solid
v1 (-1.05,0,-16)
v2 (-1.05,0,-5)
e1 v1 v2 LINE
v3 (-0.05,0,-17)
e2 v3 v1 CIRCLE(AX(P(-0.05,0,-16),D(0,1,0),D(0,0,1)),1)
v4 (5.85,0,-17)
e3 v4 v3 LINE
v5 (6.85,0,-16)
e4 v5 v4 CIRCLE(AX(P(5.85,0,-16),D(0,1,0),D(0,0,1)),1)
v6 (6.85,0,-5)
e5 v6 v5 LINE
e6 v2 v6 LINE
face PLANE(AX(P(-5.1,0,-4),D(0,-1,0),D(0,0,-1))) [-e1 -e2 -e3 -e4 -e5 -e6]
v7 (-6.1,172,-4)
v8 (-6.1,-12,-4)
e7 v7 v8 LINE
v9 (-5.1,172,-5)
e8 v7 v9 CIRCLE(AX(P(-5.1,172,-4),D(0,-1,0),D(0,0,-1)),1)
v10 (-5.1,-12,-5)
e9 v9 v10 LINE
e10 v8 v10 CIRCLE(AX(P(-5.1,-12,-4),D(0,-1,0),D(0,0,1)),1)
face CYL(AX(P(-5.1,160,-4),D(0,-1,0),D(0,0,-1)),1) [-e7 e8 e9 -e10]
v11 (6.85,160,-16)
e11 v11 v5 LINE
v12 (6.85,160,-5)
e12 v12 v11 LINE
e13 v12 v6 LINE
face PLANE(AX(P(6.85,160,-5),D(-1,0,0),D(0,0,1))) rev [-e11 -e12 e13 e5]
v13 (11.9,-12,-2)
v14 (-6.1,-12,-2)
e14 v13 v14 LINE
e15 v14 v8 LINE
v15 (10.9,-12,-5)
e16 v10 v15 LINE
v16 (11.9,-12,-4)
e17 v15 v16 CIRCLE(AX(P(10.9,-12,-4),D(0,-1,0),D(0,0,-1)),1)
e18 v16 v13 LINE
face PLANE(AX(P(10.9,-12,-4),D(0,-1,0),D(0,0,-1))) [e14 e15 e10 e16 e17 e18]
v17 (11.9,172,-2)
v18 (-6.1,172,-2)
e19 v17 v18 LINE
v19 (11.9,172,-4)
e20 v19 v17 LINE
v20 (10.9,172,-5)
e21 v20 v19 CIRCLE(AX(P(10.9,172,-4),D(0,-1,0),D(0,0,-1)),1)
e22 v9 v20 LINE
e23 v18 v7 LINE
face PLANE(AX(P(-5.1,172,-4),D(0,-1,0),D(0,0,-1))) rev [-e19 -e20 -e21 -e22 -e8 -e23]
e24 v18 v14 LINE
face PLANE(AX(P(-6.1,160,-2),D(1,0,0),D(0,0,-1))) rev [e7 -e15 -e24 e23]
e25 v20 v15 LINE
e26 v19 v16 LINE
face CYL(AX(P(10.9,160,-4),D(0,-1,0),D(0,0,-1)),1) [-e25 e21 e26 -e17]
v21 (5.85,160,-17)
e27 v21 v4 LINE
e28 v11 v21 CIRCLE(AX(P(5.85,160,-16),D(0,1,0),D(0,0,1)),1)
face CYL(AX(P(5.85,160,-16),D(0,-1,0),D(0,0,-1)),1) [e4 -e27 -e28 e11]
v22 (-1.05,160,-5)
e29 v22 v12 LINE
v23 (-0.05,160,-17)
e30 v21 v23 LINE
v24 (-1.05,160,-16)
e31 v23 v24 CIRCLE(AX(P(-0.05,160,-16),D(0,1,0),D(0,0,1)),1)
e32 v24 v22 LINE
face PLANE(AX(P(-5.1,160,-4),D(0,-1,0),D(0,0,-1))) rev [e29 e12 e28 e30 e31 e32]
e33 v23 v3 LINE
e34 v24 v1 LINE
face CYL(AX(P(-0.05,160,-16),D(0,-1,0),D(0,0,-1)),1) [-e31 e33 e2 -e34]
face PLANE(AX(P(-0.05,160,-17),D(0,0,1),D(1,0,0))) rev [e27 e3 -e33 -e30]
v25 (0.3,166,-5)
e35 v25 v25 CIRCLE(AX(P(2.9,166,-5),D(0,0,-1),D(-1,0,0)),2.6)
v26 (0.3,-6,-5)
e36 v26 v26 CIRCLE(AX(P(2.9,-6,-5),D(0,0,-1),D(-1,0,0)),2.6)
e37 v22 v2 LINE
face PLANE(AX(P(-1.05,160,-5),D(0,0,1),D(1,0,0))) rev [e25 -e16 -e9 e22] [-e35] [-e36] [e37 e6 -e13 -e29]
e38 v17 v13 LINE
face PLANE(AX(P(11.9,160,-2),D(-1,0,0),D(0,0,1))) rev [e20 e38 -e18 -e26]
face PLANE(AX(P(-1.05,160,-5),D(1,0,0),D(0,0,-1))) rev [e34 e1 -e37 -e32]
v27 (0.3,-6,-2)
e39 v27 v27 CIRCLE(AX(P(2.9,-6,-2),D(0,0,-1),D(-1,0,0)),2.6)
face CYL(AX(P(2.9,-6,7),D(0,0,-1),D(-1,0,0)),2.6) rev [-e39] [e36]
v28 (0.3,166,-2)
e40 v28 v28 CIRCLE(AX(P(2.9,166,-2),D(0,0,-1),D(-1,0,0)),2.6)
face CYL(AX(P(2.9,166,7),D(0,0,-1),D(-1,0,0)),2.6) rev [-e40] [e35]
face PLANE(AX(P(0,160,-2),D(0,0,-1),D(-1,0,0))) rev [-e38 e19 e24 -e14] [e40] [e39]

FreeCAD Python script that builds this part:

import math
import FreeCAD as App
import Part
import Sketcher

doc = App.newDocument("Part")
body = doc.addObject("PartDesign::Body", "Body")

# Sketch on XZ plane
sketch1 = body.newObject("Sketcher::SketchObject", "Sketch")
sketch1.AttachmentSupport = (doc.getObject("XZ_Plane"), [""])
sketch1.MapMode = "FlatFace"
sketch1.addGeometry([
    Part.LineSegment(App.Vector(-6.1, -4, 0), App.Vector(-6.1, -2, 0)),  # 0
    Part.LineSegment(App.Vector(-6.1, -2, 0), App.Vector(11.9, -2, 0)),  # 1
    Part.LineSegment(App.Vector(11.9, -2, 0), App.Vector(11.9, -4, 0)),  # 2
    Part.ArcOfCircle(Part.Circle(App.Vector(10.9, -4, 0), App.Vector(0, 0, 1), 1), math.radians(-90), math.radians(0)),  # 3
    Part.LineSegment(App.Vector(10.9, -5, 0), App.Vector(6.8, -5, 0)),  # 4
    Part.LineSegment(App.Vector(6.8, -5, 0), App.Vector(6.8, -16, 0)),  # 5
    Part.ArcOfCircle(Part.Circle(App.Vector(5.8, -16, 0), App.Vector(0, 0, 1), 1), math.radians(-90), math.radians(0)),  # 6
    Part.LineSegment(App.Vector(5.8, -17, 0), App.Vector(-0.1, -17, 0)),  # 7
    Part.ArcOfCircle(Part.Circle(App.Vector(0, -16, 0), App.Vector(0, 0, 1), 1), math.radians(-180), math.radians(-90)),  # 8
    Part.LineSegment(App.Vector(-1.1, -16, 0), App.Vector(-1.1, -5, 0)),  # 9
    Part.LineSegment(App.Vector(-1.1, -5, 0), App.Vector(-5.1, -5, 0)),  # 10
    Part.ArcOfCircle(Part.Circle(App.Vector(-5.1, -4, 0), App.Vector(0, 0, 1), 1), math.radians(-180), math.radians(-90)),  # 11
], False)
sketch1.addConstraint([
    Sketcher.Constraint("Coincident", 0, 2, 1, 1),
    Sketcher.Constraint("Coincident", 1, 2, 2, 1),
    Sketcher.Constraint("Tangent", 2, 2, 3, 2),
    Sketcher.Constraint("Tangent", 3, 1, 4, 1),
    Sketcher.Constraint("Coincident", 4, 2, 5, 1),
    Sketcher.Constraint("Tangent", 5, 2, 6, 2),
    Sketcher.Constraint("Tangent", 6, 1, 7, 1),
    Sketcher.Constraint("Tangent", 7, 2, 8, 2),
    Sketcher.Constraint("Tangent", 8, 1, 9, 1),
    Sketcher.Constraint("Coincident", 9, 2, 10, 1),
    Sketcher.Constraint("Tangent", 10, 2, 11, 2),
    Sketcher.Constraint("Tangent", 11, 1, 0, 1),
    Sketcher.Constraint("Vertical", 0),
    Sketcher.Constraint("Horizontal", 1),
    Sketcher.Constraint("Vertical", 2),
    Sketcher.Constraint("Horizontal", 4),
    Sketcher.Constraint("Vertical", 5),
    Sketcher.Constraint("Horizontal", 7),
    Sketcher.Constraint("Vertical", 9),
    Sketcher.Constraint("Horizontal", 10),
    Sketcher.Constraint("Equal", 3, 6),
    Sketcher.Constraint("Equal", 6, 8),
    Sketcher.Constraint("Equal", 8, 11),
    Sketcher.Constraint("Horizontal", 3, 3, 11, 3),
    Sketcher.Constraint("Equal", 4, 10),
    Sketcher.Constraint("Radius", 3, 1.0),
    Sketcher.Constraint("DistanceX", 1, 1, 1, 2, 18.0),
    Sketcher.Constraint("DistanceY", 0, 1, 0, 2, 2.0),
    Sketcher.Constraint("DistanceY", 5, 2, 5, 1, 11.0),
    Sketcher.Constraint("DistanceX", 7, 2, 7, 1, 5.9),
    Sketcher.Constraint("DistanceY", 3, 3, -1, 1, 4.0),
    Sketcher.Constraint("DistanceX", -1, 1, 3, 3, 10.9),
])
pad1 = body.newObject("PartDesign::Pad", "Pad")
pad1.Profile = sketch1
pad1.Length = 160
pad1.Reversed = True

# Sketch on XZ plane
sketch2 = body.newObject("Sketcher::SketchObject", "Sketch001")
sketch2.AttachmentSupport = (doc.getObject("XZ_Plane"), [""])
sketch2.MapMode = "FlatFace"
sketch2.AttachmentOffset = App.Placement(App.Vector(0, 0, 12), App.Rotation())
sketch2.addGeometry([
    Part.LineSegment(App.Vector(11.9, -2, 0), App.Vector(-6.1, -2, 0)),  # 0
    Part.LineSegment(App.Vector(-6.1, -2, 0), App.Vector(-6.1, -4, 0)),  # 1
    Part.ArcOfCircle(Part.Circle(App.Vector(-5.1, -4, 0), App.Vector(0, 0, 1), 1), math.radians(-180), math.radians(-90)),  # 2
    Part.LineSegment(App.Vector(-5.1, -5, 0), App.Vector(10.9, -5, 0)),  # 3
    Part.ArcOfCircle(Part.Circle(App.Vector(10.9, -4, 0), App.Vector(0, 0, 1), 1), math.radians(-90), math.radians(0)),  # 4
    Part.LineSegment(App.Vector(11.9, -4, 0), App.Vector(11.9, -2, 0)),  # 5
], False)
sketch2.addConstraint([
    Sketcher.Constraint("Coincident", 0, 2, 1, 1),
    Sketcher.Constraint("Tangent", 1, 2, 2, 1),
    Sketcher.Constraint("Tangent", 2, 2, 3, 1),
    Sketcher.Constraint("Tangent", 3, 2, 4, 1),
    Sketcher.Constraint("Tangent", 4, 2, 5, 1),
    Sketcher.Constraint("Coincident", 5, 2, 0, 1),
    Sketcher.Constraint("Horizontal", 0),
    Sketcher.Constraint("Vertical", 1),
    Sketcher.Constraint("Horizontal", 3),
    Sketcher.Constraint("Vertical", 5),
    Sketcher.Constraint("Equal", 2, 4),
    Sketcher.Constraint("Radius", 2, 1.0),
    Sketcher.Constraint("DistanceX", 0, 2, 0, 1, 18.0),
    Sketcher.Constraint("DistanceY", 1, 2, 1, 1, 2.0),
    Sketcher.Constraint("DistanceY", 2, 3, -1, 1, 4.0),
    Sketcher.Constraint("DistanceX", 2, 3, -1, 1, 5.1),
])
pad2 = body.newObject("PartDesign::Pad", "Pad001")
pad2.Profile = sketch2
pad2.Length = 12
pad2.Reversed = True

# Sketch on XZ plane
sketch3 = body.newObject("Sketcher::SketchObject", "Sketch002")
sketch3.AttachmentSupport = (doc.getObject("XZ_Plane"), [""])
sketch3.MapMode = "FlatFace"
sketch3.AttachmentOffset = App.Placement(App.Vector(0, 0, -160), App.Rotation())
sketch3.addGeometry([
    Part.LineSegment(App.Vector(11.9, -2, 0), App.Vector(-6.1, -2, 0)),  # 0
    Part.LineSegment(App.Vector(-6.1, -2, 0), App.Vector(-6.1, -4, 0)),  # 1
    Part.ArcOfCircle(Part.Circle(App.Vector(-5.1, -4, 0), App.Vector(0, 0, 1), 1), math.radians(-180), math.radians(-90)),  # 2
    Part.LineSegment(App.Vector(-5.1, -5, 0), App.Vector(10.9, -5, 0)),  # 3
    Part.ArcOfCircle(Part.Circle(App.Vector(10.9, -4, 0), App.Vector(0, 0, 1), 1), math.radians(-90), math.radians(0)),  # 4
    Part.LineSegment(App.Vector(11.9, -4, 0), App.Vector(11.9, -2, 0)),  # 5
], False)
sketch3.addConstraint([
    Sketcher.Constraint("Coincident", 0, 2, 1, 1),
    Sketcher.Constraint("Tangent", 1, 2, 2, 1),
    Sketcher.Constraint("Tangent", 2, 2, 3, 1),
    Sketcher.Constraint("Tangent", 3, 2, 4, 1),
    Sketcher.Constraint("Tangent", 4, 2, 5, 1),
    Sketcher.Constraint("Coincident", 5, 2, 0, 1),
    Sketcher.Constraint("Horizontal", 0),
    Sketcher.Constraint("Vertical", 1),
    Sketcher.Constraint("Horizontal", 3),
    Sketcher.Constraint("Vertical", 5),
    Sketcher.Constraint("Equal", 2, 4),
    Sketcher.Constraint("Radius", 2, 1.0),
    Sketcher.Constraint("DistanceX", 0, 2, 0, 1, 18.0),
    Sketcher.Constraint("DistanceY", 1, 2, 1, 1, 2.0),
    Sketcher.Constraint("DistanceY", 2, 3, -1, 1, 4.0),
    Sketcher.Constraint("DistanceX", 2, 3, -1, 1, 5.1),
])
pad3 = body.newObject("PartDesign::Pad", "Pad002")
pad3.Profile = sketch3
pad3.Length = 12
pad3.Reversed = True

# Sketch on XY plane
sketch4 = body.newObject("Sketcher::SketchObject", "Sketch003")
sketch4.AttachmentSupport = (doc.getObject("XY_Plane"), [""])
sketch4.MapMode = "FlatFace"
sketch4.AttachmentOffset = App.Placement(App.Vector(0, 0, -5), App.Rotation())
sketch4.addGeometry([
    Part.Circle(App.Vector(2.9, 166, 0), App.Vector(0, 0, 1), 2.6),
    Part.Circle(App.Vector(2.9, -6, 0), App.Vector(0, 0, 1), 2.6),
], False)
sketch4.addConstraint([
    Sketcher.Constraint("Equal", 0, 1),
    Sketcher.Constraint("Vertical", 0, 3, 1, 3),
    Sketcher.Constraint("Diameter", 0, 5.2),
    Sketcher.Constraint("DistanceY", -1, 1, 0, 3, 166.0),
    Sketcher.Constraint("DistanceY", 1, 3, -1, 1, 6.0),
    Sketcher.Constraint("DistanceX", -1, 1, 0, 3, 2.9),
])
pocket1 = body.newObject("PartDesign::Pocket", "Pocket")
pocket1.Profile = sketch4
pocket1.Length = 12
pocket1.Reversed = True

doc.recompute()
